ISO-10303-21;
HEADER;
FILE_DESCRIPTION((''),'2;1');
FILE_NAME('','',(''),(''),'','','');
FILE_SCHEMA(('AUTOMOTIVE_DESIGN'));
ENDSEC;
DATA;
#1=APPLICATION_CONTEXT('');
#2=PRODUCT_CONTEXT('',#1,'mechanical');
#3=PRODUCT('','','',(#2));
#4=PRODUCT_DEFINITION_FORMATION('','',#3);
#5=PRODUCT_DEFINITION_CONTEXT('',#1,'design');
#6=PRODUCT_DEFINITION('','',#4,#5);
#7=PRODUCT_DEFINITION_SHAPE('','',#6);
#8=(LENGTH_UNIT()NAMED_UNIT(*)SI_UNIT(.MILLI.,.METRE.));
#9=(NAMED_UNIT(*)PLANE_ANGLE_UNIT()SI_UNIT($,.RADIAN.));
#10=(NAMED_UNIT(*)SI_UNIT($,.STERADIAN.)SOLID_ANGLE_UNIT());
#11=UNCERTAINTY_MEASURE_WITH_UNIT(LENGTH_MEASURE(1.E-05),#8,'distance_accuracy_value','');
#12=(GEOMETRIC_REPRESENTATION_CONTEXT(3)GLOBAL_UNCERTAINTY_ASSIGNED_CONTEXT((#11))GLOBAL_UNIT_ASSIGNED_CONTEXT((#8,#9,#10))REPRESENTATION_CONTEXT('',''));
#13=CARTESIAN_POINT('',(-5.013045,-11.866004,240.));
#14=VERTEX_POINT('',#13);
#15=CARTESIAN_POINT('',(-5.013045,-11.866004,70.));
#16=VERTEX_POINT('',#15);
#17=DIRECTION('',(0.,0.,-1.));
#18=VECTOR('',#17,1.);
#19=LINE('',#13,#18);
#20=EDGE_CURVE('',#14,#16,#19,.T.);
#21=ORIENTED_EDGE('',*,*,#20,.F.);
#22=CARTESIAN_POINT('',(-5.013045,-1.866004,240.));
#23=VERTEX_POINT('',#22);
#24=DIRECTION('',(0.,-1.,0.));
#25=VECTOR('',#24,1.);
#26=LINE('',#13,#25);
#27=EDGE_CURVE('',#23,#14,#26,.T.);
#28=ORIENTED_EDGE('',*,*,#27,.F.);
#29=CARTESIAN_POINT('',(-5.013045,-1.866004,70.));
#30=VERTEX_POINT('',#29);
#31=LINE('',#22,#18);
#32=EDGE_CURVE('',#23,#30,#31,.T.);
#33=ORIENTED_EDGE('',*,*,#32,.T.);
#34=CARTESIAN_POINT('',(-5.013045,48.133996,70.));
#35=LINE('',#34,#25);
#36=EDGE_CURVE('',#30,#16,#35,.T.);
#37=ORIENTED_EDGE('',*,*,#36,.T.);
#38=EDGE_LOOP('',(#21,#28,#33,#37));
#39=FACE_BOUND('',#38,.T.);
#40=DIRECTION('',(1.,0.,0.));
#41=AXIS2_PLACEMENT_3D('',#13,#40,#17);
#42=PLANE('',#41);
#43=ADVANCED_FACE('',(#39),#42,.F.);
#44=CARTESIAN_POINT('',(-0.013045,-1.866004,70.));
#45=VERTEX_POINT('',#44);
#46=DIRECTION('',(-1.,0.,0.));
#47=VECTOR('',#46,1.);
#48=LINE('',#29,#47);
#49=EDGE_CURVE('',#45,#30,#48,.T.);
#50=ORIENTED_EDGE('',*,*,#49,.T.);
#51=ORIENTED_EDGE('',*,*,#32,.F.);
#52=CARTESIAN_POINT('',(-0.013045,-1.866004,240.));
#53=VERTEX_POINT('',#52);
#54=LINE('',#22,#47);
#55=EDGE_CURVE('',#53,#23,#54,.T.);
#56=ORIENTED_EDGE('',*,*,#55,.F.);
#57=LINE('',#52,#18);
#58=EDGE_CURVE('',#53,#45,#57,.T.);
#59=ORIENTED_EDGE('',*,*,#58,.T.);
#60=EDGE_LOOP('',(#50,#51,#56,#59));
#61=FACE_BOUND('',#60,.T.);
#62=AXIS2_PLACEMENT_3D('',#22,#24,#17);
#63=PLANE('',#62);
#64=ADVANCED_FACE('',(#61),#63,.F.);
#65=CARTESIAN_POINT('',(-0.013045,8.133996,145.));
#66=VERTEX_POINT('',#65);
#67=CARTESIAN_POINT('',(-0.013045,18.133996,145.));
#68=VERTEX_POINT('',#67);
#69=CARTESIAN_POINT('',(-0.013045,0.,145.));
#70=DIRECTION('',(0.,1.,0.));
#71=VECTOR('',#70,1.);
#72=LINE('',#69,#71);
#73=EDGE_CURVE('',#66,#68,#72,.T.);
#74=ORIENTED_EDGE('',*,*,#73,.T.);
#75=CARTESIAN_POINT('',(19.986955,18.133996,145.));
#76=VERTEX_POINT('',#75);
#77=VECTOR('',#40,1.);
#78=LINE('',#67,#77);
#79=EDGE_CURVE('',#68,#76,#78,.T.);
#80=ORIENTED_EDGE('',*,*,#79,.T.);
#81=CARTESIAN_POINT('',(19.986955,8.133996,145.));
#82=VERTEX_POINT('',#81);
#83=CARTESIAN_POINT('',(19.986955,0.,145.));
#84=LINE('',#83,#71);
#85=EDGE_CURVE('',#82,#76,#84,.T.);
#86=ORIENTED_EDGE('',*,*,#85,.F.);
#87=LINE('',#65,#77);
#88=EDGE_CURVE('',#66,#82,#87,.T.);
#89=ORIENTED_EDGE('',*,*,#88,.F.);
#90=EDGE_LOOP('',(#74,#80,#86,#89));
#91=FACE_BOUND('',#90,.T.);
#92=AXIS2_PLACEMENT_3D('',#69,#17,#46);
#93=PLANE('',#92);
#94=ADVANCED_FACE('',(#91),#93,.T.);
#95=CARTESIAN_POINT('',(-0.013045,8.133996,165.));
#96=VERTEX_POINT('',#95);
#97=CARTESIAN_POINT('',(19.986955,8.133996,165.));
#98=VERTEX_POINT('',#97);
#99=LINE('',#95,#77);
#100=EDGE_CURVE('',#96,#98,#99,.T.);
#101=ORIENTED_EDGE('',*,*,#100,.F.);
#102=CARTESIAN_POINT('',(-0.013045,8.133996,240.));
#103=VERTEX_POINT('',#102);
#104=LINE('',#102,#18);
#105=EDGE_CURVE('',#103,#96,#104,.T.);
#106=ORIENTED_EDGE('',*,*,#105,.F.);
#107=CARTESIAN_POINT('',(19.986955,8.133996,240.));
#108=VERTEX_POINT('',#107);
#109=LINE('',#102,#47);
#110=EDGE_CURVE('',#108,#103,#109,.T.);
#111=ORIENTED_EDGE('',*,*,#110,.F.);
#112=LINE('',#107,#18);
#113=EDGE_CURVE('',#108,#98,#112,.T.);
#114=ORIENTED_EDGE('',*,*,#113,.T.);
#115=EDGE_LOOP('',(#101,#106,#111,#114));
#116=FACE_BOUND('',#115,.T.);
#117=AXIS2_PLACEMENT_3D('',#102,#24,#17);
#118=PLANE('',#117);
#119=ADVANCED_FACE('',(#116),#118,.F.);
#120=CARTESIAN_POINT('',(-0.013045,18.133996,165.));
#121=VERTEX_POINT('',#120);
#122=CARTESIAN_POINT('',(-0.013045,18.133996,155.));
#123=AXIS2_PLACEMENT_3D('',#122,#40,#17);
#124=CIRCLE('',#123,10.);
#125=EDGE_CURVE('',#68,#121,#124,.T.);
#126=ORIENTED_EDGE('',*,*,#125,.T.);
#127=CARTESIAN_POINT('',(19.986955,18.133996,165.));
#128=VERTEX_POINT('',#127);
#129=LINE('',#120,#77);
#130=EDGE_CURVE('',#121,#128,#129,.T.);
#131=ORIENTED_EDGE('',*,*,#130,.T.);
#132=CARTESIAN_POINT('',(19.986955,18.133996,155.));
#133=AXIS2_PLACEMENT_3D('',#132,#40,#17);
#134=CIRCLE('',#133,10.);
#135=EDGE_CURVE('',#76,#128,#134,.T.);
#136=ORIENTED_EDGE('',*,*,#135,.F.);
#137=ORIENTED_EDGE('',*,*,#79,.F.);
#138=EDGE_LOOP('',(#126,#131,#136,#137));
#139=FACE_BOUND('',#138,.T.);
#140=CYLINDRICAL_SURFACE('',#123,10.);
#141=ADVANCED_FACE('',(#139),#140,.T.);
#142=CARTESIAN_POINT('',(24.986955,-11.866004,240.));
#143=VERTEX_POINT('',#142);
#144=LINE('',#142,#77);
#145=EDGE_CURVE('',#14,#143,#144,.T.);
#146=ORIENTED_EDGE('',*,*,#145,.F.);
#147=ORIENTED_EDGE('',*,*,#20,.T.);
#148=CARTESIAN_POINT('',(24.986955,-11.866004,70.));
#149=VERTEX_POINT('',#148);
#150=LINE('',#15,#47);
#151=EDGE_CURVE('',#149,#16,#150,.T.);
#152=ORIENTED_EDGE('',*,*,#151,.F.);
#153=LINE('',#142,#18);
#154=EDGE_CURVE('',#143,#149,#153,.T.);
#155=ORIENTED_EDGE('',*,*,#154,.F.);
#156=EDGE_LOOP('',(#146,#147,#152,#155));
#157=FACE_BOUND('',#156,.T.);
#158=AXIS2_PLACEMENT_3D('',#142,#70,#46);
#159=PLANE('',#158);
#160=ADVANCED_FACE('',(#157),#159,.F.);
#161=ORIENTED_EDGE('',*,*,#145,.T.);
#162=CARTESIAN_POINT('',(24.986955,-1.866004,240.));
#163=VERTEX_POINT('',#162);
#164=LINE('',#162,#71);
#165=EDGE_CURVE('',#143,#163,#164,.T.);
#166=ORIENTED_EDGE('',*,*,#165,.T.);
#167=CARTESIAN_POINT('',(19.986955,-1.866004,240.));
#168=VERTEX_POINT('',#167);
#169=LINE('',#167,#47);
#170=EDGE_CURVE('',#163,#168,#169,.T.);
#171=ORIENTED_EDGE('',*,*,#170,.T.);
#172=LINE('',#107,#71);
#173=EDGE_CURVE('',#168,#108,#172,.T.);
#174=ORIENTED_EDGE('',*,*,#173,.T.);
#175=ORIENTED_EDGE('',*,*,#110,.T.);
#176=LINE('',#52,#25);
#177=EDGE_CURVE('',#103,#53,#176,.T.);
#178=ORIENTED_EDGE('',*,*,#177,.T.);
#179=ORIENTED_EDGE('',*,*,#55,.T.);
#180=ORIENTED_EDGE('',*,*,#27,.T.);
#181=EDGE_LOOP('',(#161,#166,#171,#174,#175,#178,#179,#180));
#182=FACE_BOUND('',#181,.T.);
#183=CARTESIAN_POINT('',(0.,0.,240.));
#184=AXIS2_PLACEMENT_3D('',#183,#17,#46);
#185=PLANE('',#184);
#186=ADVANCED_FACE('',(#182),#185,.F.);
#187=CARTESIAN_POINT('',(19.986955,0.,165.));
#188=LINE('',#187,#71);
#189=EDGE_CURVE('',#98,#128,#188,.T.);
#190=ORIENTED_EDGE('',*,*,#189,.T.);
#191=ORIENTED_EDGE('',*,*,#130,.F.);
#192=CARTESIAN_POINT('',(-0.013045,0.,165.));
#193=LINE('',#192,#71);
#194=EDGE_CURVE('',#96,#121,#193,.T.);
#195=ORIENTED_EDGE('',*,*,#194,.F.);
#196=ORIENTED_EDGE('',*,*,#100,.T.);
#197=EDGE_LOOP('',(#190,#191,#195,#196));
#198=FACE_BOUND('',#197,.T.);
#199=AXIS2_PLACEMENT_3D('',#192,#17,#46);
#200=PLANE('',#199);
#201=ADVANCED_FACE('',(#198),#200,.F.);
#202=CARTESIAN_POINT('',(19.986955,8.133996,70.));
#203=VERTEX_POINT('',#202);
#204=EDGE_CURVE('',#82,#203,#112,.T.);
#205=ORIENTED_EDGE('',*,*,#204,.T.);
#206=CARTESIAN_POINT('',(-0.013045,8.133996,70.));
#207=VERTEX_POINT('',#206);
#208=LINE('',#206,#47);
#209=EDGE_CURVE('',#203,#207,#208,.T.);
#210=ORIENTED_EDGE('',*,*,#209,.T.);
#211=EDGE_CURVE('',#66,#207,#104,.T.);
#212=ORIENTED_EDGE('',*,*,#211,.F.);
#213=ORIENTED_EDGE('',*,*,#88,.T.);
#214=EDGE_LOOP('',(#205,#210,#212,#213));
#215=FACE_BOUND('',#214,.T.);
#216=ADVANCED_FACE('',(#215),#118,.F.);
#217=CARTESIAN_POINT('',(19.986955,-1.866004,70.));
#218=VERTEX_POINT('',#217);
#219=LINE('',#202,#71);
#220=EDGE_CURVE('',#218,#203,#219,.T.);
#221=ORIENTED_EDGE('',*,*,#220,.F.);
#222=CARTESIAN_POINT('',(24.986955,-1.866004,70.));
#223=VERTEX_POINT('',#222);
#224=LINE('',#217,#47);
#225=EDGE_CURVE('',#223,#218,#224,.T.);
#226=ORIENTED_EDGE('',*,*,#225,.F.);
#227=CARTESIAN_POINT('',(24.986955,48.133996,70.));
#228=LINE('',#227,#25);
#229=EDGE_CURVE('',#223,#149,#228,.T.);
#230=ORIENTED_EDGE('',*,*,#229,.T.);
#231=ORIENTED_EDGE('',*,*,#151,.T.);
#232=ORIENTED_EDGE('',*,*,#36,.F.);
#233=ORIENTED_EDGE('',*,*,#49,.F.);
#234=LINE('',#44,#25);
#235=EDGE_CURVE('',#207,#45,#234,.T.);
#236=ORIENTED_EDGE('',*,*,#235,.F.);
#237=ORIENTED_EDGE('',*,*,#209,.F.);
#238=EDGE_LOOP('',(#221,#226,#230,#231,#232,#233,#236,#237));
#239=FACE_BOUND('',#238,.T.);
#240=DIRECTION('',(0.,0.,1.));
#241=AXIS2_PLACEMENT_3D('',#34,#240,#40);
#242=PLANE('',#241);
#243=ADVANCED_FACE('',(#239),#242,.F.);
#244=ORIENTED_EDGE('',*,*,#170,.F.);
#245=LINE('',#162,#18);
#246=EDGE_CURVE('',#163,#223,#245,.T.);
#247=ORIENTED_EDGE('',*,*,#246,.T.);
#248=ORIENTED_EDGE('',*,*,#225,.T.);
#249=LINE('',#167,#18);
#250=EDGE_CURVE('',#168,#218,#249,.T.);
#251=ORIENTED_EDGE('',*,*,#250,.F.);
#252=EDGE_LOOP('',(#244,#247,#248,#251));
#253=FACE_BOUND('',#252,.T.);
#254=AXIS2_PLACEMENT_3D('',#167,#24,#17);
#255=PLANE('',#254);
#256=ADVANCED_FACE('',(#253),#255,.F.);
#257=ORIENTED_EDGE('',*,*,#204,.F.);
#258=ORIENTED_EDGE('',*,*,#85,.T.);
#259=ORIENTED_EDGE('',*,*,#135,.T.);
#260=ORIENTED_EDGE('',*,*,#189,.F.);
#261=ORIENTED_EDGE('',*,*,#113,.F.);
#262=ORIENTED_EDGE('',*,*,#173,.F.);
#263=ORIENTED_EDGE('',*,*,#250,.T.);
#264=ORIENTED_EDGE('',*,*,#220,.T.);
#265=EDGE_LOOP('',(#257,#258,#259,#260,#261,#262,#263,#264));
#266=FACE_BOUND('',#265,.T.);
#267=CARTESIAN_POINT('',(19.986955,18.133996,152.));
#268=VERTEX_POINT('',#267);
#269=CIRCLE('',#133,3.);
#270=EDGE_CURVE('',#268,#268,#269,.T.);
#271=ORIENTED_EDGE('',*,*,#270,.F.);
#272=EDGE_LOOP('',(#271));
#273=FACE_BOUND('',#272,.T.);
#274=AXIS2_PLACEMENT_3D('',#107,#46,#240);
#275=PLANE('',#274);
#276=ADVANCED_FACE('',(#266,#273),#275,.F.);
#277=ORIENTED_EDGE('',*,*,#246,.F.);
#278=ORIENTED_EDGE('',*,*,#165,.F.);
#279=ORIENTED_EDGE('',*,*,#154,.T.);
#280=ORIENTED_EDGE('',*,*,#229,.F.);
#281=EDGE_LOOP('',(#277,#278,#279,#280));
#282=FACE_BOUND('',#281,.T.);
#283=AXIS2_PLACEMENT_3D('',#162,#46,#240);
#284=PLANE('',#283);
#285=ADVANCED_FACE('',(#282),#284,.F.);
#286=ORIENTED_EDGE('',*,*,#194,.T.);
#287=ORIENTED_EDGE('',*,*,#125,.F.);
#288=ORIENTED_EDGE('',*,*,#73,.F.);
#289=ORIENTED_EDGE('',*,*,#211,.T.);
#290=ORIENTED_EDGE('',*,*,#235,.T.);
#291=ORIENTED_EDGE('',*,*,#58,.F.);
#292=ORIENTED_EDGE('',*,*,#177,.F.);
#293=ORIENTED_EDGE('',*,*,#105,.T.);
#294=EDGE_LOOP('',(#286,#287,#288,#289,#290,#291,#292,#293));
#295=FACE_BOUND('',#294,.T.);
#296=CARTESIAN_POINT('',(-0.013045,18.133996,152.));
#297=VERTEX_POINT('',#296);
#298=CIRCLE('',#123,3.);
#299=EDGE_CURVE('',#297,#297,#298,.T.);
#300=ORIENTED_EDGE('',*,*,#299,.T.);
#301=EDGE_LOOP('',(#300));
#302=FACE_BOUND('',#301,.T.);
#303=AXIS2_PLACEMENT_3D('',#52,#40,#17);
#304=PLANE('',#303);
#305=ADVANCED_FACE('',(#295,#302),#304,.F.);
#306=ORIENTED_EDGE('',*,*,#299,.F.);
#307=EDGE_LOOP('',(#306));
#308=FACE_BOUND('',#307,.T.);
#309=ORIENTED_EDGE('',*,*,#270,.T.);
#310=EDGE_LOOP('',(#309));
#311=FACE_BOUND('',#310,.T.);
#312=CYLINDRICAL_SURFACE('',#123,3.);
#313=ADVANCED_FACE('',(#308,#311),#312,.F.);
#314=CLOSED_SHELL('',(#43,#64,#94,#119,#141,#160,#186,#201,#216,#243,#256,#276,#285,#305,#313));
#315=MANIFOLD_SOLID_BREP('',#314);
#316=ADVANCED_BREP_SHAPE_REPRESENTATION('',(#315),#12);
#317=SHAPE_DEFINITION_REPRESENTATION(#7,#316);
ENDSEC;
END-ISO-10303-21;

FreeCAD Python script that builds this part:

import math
import FreeCAD as App
import Part
import Sketcher
from FreeCAD import Vector


def add_polygon(sketch, points):
    """Adds a closed chain of lines whose ends are joined by coincident constraints."""
    first, n = sketch.GeometryCount, len(points)
    for a, b in zip(points, points[1:] + points[:1]):
        sketch.addGeometry(Part.LineSegment(App.Vector(*a, 0), App.Vector(*b, 0)), False)
    for i in range(n):
        sketch.addConstraint(Sketcher.Constraint("Coincident", first + i, 2, first + (i + 1) % n, 1))

doc = App.newDocument("Part")
body = doc.addObject("PartDesign::Body", "Body")

# Sketch on XY plane
sketch1 = doc.addObject("Sketcher::SketchObject", "Sketch")
body.addObject(sketch1)
sketch1.AttachmentSupport = (doc.XY_Plane, [""])
sketch1.MapMode = "FlatFace"
add_polygon(sketch1, [(-5, -12), (25, -12), (25, -2), (20, -2), (20, 8), (0, 8), (0, -2), (-5, -2)])  # lines 0-7
sketch1.addConstraint([
    Sketcher.Constraint("Horizontal", 0),
    Sketcher.Constraint("Vertical", 1),
    Sketcher.Constraint("Horizontal", 2),
    Sketcher.Constraint("Vertical", 3),
    Sketcher.Constraint("Horizontal", 4),
    Sketcher.Constraint("Vertical", 5),
    Sketcher.Constraint("Horizontal", 6),
    Sketcher.Constraint("Vertical", 7),
    Sketcher.Constraint("Horizontal", 2, 2, 5, 2),
    Sketcher.Constraint("Equal", 2, 6),
    Sketcher.Constraint("Equal", 1, 3),
    Sketcher.Constraint("DistanceX", 0, 1, 0, 2, 30.0),
    Sketcher.Constraint("DistanceX", 2, 2, 2, 1, 5.0),
    Sketcher.Constraint("DistanceY", 1, 1, 1, 2, 10.0),
    Sketcher.Constraint("DistanceX", -1, 1, 0, 2, 24.986955),
    Sketcher.Constraint("DistanceY", 0, 2, -1, 1, 11.866004),
])
pad1 = doc.addObject("PartDesign::Pad", "Pad")
body.addObject(pad1)
pad1.Profile = sketch1
pad1.Length = 240

# Sketch on XY plane
sketch2 = doc.addObject("Sketcher::SketchObject", "Sketch001")
body.addObject(sketch2)
sketch2.AttachmentSupport = (doc.XY_Plane, [""])
sketch2.MapMode = "FlatFace"
add_polygon(sketch2, [(0, 8), (20, 8), (20, -2), (25, -2), (25, -12), (-5, -12), (-5, -2), (0, -2)])  # lines 0-7
sketch2.addConstraint([
    Sketcher.Constraint("Horizontal", 0),
    Sketcher.Constraint("Vertical", 1),
    Sketcher.Constraint("Horizontal", 2),
    Sketcher.Constraint("Vertical", 3),
    Sketcher.Constraint("Horizontal", 4),
    Sketcher.Constraint("Vertical", 5),
    Sketcher.Constraint("Horizontal", 6),
    Sketcher.Constraint("Vertical", 7),
    Sketcher.Constraint("Horizontal", 2, 2, 5, 2),
    Sketcher.Constraint("Equal", 2, 6),
    Sketcher.Constraint("Equal", 1, 3),
    Sketcher.Constraint("DistanceX", 0, 1, 0, 2, 20.0),
    Sketcher.Constraint("DistanceX", 2, 1, 2, 2, 5.0),
    Sketcher.Constraint("DistanceY", 1, 2, 1, 1, 10.0),
    Sketcher.Constraint("DistanceX", -1, 1, 0, 2, 19.986955),
    Sketcher.Constraint("DistanceY", -1, 1, 0, 2, 8.133996),
])
pad2 = doc.addObject("PartDesign::Pad", "Pad001")
body.addObject(pad2)
pad2.Profile = sketch2
pad2.Length = 100
pad2.Reversed = True

# Sketch on XZ plane
sketch3 = doc.addObject("Sketcher::SketchObject", "Sketch002")
body.addObject(sketch3)
sketch3.AttachmentSupport = (doc.XZ_Plane, [""])
sketch3.MapMode = "FlatFace"
sketch3.AttachmentOffset = App.Placement(Vector(0, 0, 11.866004), App.Rotation())
add_polygon(sketch3, [(-5, 70), (-5, -100), (25, -100), (25, 70)])  # lines 0-3
sketch3.addConstraint([
    Sketcher.Constraint("Vertical", 0),
    Sketcher.Constraint("Horizontal", 1),
    Sketcher.Constraint("Vertical", 2),
    Sketcher.Constraint("Horizontal", 3),
    Sketcher.Constraint("DistanceX", 1, 1, 1, 2, 30.0),
    Sketcher.Constraint("DistanceY", 0, 2, 0, 1, 170.0),
    Sketcher.Constraint("DistanceY", 0, 2, -1, 1, 100.0),
    Sketcher.Constraint("DistanceX", 0, 2, -1, 1, 5.013045),
])
pocket1 = doc.addObject("PartDesign::Pocket", "Pocket")
body.addObject(pocket1)
pocket1.Profile = sketch3
pocket1.Length = 60

# Sketch on YZ plane
sketch4 = doc.addObject("Sketcher::SketchObject", "Sketch003")
body.addObject(sketch4)
sketch4.AttachmentSupport = (doc.YZ_Plane, [""])
sketch4.MapMode = "FlatFace"
sketch4.AttachmentOffset = App.Placement(Vector(0, 0, 19.986955), App.Rotation())
sketch4.addGeometry([
    Part.ArcOfCircle(Part.Circle(Vector(18.1, 155, 0), Vector(0, 0, 1), 10), math.radians(-90), math.radians(90)),  # 0
    Part.LineSegment(Vector(18.1, 165, 0), Vector(8.1, 165, 0)),  # 1
    Part.LineSegment(Vector(8.1, 165, 0), Vector(8.1, 145, 0)),  # 2
    Part.LineSegment(Vector(8.1, 145, 0), Vector(18.1, 145, 0)),  # 3
    Part.Circle(Vector(18.1, 155, 0), Vector(0, 0, 1), 3),  # 4
], False)
sketch4.addConstraint([
    Sketcher.Constraint("Tangent", 0, 2, 1, 1),
    Sketcher.Constraint("Coincident", 1, 2, 2, 1),
    Sketcher.Constraint("Coincident", 2, 2, 3, 1),
    Sketcher.Constraint("Tangent", 3, 2, 0, 1),
    Sketcher.Constraint("Horizontal", 1),
    Sketcher.Constraint("Vertical", 2),
    Sketcher.Constraint("Horizontal", 3),
    Sketcher.Constraint("Coincident", 4, 3, 0, 3),
    Sketcher.Constraint("Diameter", 4, 6.0),
    Sketcher.Constraint("Radius", 0, 10.0),
    Sketcher.Constraint("DistanceX", 1, 2, 1, 1, 10.0),
    Sketcher.Constraint("DistanceY", -1, 1, 0, 3, 155.0),
    Sketcher.Constraint("DistanceX", -1, 1, 0, 3, 18.133996),
])
pad3 = doc.addObject("PartDesign::Pad", "Pad002")
body.addObject(pad3)
pad3.Profile = sketch4
pad3.Length = 20
pad3.Reversed = True

doc.recompute()
